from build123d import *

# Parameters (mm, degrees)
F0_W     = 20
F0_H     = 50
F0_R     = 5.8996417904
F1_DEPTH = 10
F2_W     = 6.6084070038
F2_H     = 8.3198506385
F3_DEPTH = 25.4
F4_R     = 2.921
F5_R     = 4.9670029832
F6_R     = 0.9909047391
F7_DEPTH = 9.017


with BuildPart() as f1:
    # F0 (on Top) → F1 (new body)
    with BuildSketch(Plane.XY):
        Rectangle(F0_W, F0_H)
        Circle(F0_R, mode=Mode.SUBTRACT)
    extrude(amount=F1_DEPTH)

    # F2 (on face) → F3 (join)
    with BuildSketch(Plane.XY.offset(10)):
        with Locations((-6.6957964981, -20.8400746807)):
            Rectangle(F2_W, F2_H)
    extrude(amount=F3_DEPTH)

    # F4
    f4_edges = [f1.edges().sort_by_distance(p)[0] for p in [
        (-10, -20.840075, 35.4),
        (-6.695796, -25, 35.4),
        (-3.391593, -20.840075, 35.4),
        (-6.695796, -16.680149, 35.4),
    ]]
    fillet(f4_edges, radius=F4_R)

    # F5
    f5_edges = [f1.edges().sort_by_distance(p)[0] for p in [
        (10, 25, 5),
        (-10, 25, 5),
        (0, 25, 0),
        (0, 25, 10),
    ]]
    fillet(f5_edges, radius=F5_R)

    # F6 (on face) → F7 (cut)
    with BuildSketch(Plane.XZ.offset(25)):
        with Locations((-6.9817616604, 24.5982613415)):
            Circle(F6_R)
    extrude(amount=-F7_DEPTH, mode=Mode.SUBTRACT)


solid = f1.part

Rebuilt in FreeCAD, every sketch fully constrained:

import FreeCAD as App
import Part
import Sketcher
from FreeCAD import Vector
Q = App.Units.Quantity


def edges_at(feature, points):
    """Names of the edges that pass closest to the given points."""
    edges = feature.Shape.Edges
    near = lambda p: min(range(len(edges)), key=lambda i: edges[i].distToShape(Part.Vertex(*p))[0])
    return sorted({f"Edge{near(p) + 1}" for p in points})

doc = App.newDocument("Part")
params = doc.addObject("Spreadsheet::Sheet", "Params")
for row, (alias, value) in enumerate([
    ("sketch1_width", "20 mm"),
    ("sketch1_height", "50 mm"),
    ("pad1_length", "10 mm"),
    ("pad2_length", "25.4 mm"),
    ("fillet_radius", "2.921 mm"),
    ("fillet2_radius", "4.967003 mm"),
    ("pocket1_length", "9.017 mm"),
], start=1):
    params.set(f"A{row}", alias)
    params.set(f"B{row}", "=" + value)
    params.setAlias(f"B{row}", alias)

body = doc.addObject("PartDesign::Body", "Body")

sketch1 = doc.addObject("Sketcher::SketchObject", "Sketch")
body.addObject(sketch1)
sketch1.AttachmentSupport = (doc.XY_Plane, [""])
sketch1.MapMode = "FlatFace"
sketch1.addGeometry([
    Part.LineSegment(Vector(-10, 25, 0), Vector(-10, -25, 0)),
    Part.LineSegment(Vector(-10, -25, 0), Vector(10, -25, 0)),
    Part.LineSegment(Vector(10, -25, 0), Vector(10, 25, 0)),
    Part.LineSegment(Vector(10, 25, 0), Vector(-10, 25, 0)),
    Part.Circle(Vector(0, 0, 0), Vector(0, 0, 1), 6),
], False)
sketch1.addConstraint([
    Sketcher.Constraint("Coincident", 0, 2, 1, 1),
    Sketcher.Constraint("Coincident", 1, 2, 2, 1),
    Sketcher.Constraint("Coincident", 2, 2, 3, 1),
    Sketcher.Constraint("Coincident", 3, 2, 0, 1),
    Sketcher.Constraint("Vertical", 0),
    Sketcher.Constraint("Horizontal", 1),
    Sketcher.Constraint("Vertical", 2),
    Sketcher.Constraint("Horizontal", 3),
    Sketcher.Constraint("Coincident", 4, 3, -1, 1),
    Sketcher.Constraint("Symmetric", 0, 2, 2, 2, -1, 1),
    Sketcher.Constraint("DistanceX", 1, 1, 1, 2, Q("20 mm")),
    Sketcher.Constraint("DistanceY", 0, 2, 0, 1, Q("50 mm")),
    Sketcher.Constraint("Diameter", 4, Q("11.799284 mm")),
])
sketch1.setExpression("Constraints[10]", "Params.sketch1_width")
sketch1.setExpression("Constraints[11]", "Params.sketch1_height")
pad1 = doc.addObject("PartDesign::Pad", "Pad")
body.addObject(pad1)
pad1.Profile = sketch1
pad1.setExpression("Length", "Params.pad1_length")

sketch2 = doc.addObject("Sketcher::SketchObject", "Sketch001")
body.addObject(sketch2)
sketch2.AttachmentSupport = (doc.XY_Plane, [""])
sketch2.MapMode = "FlatFace"
sketch2.AttachmentOffset = App.Placement(Vector(0, 0, 10), App.Rotation())
sketch2.addGeometry([
    Part.LineSegment(Vector(-10, -17, 0), Vector(-10, -25, 0)),
    Part.LineSegment(Vector(-10, -25, 0), Vector(-3, -25, 0)),
    Part.LineSegment(Vector(-3, -25, 0), Vector(-3, -17, 0)),
    Part.LineSegment(Vector(-3, -17, 0), Vector(-10, -17, 0)),
], False)
sketch2.addConstraint([
    Sketcher.Constraint("Coincident", 0, 2, 1, 1),
    Sketcher.Constraint("Coincident", 1, 2, 2, 1),
    Sketcher.Constraint("Coincident", 2, 2, 3, 1),
    Sketcher.Constraint("Coincident", 3, 2, 0, 1),
    Sketcher.Constraint("Vertical", 0),
    Sketcher.Constraint("Horizontal", 1),
    Sketcher.Constraint("Vertical", 2),
    Sketcher.Constraint("Horizontal", 3),
    Sketcher.Constraint("DistanceX", 0, 2, -1, 1, Q("10 mm")),
    Sketcher.Constraint("DistanceY", 0, 2, -1, 1, Q("25 mm")),
    Sketcher.Constraint("DistanceY", 0, 2, 0, 1, Q("8.319851 mm")),
    Sketcher.Constraint("DistanceX", 1, 1, 1, 2, Q("6.608407 mm")),
])
pad2 = doc.addObject("PartDesign::Pad", "Pad001")
body.addObject(pad2)
pad2.Profile = sketch2
pad2.setExpression("Length", "Params.pad2_length")
doc.recompute()

fillet = doc.addObject("PartDesign::Fillet", "Fillet")
body.addObject(fillet)
fillet.Base = (pad2, edges_at(pad2, [
    (-10, -20.84, 35.4),
    (-6.696, -25, 35.4),
    (-3.392, -20.84, 35.4),
    (-6.696, -16.68, 35.4),
]))
fillet.setExpression("Radius", "Params.fillet_radius")
doc.recompute()

fillet2 = doc.addObject("PartDesign::Fillet", "Fillet001")
body.addObject(fillet2)
fillet2.Base = (fillet, edges_at(fillet, [
    (10, 25, 5),
    (-10, 25, 5),
    (0, 25, 0),
    (0, 25, 10),
]))
fillet2.setExpression("Radius", "Params.fillet2_radius")

sketch3 = doc.addObject("Sketcher::SketchObject", "Sketch002")
body.addObject(sketch3)
sketch3.AttachmentSupport = (doc.XZ_Plane, [""])
sketch3.MapMode = "FlatFace"
sketch3.AttachmentOffset = App.Placement(Vector(0, 0, 25), App.Rotation())
sketch3.addGeometry(Part.Circle(Vector(-7, 24.6, 0), Vector(0, 0, 1), 1), False)
sketch3.addConstraint([
    Sketcher.Constraint("Diameter", 0, Q("1.981809 mm")),
    Sketcher.Constraint("DistanceX", 0, 3, -1, 1, Q("6.981762 mm")),
    Sketcher.Constraint("DistanceY", -1, 1, 0, 3, Q("24.598261 mm")),
])
pocket1 = doc.addObject("PartDesign::Pocket", "Pocket")
body.addObject(pocket1)
pocket1.Profile = sketch3
pocket1.setExpression("Length", "Params.pocket1_length")

doc.recompute()
